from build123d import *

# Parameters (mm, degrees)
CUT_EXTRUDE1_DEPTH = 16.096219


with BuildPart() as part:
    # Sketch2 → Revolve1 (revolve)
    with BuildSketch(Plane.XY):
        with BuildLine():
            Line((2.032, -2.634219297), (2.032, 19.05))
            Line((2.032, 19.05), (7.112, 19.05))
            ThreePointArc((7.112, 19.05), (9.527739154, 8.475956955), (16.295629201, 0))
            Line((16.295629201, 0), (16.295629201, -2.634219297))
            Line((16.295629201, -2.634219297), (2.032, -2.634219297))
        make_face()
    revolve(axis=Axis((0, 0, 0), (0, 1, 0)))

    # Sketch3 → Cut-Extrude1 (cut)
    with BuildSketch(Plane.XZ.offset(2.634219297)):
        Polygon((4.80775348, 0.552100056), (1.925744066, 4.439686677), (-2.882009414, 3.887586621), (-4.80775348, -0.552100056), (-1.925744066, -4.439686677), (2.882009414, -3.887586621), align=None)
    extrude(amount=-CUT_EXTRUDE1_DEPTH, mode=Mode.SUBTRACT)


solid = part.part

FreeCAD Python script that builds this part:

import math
import FreeCAD as App
import Part
import Sketcher

V = App.Vector
Q = App.Units.Quantity


def add_polygon(sketch, points):
    """Adds a closed chain of lines whose ends are joined by coincident constraints."""
    first, n = sketch.GeometryCount, len(points)
    for a, b in zip(points, points[1:] + points[:1]):
        sketch.addGeometry(Part.LineSegment(App.Vector(*a, 0), App.Vector(*b, 0)), False)
    for i in range(n):
        sketch.addConstraint(Sketcher.Constraint("Coincident", first + i, 2, first + (i + 1) % n, 1))

doc = App.newDocument("Part")
params = doc.addObject("Spreadsheet::Sheet", "Params")
for row, (alias, value) in enumerate([
    ("sketch1_width", "0.2 in"),
    ("revolution_angle", "360 deg"),
    ("pocket1_length", "16.096219 mm"),
], start=1):
    params.set(f"A{row}", alias)
    params.set(f"B{row}", "=" + value)
    params.setAlias(f"B{row}", alias)

body = doc.addObject("PartDesign::Body", "Body")

sketch1 = body.newObject("Sketcher::SketchObject", "Sketch")
sketch1.AttachmentSupport = (doc.getObject("XY_Plane"), [""])
sketch1.MapMode = "FlatFace"
sketch1.addGeometry([
    Part.LineSegment(V(2.032, 19.05, 0), V(2.032, -2.634219, 0)),
    Part.LineSegment(V(2.032, -2.634219, 0), V(16.295629, -2.634219, 0)),
    Part.LineSegment(V(16.295629, -2.634219, 0), V(16.295629, 0, 0)),
    Part.ArcOfCircle(Part.Circle(V(31.461935, 19.05, 0), V(0, 0, 1), 24.349935), math.radians(-180), math.radians(-128.524402)),
    Part.LineSegment(V(7.112, 19.05, 0), V(2.032, 19.05, 0)),
], False)
sketch1.addConstraint([
    Sketcher.Constraint("Coincident", 0, 2, 1, 1),
    Sketcher.Constraint("Coincident", 1, 2, 2, 1),
    Sketcher.Constraint("Coincident", 2, 2, 3, 2),
    Sketcher.Constraint("Coincident", 3, 1, 4, 1),
    Sketcher.Constraint("Coincident", 4, 2, 0, 1),
    Sketcher.Constraint("Vertical", 0),
    Sketcher.Constraint("Horizontal", 1),
    Sketcher.Constraint("Vertical", 2),
    Sketcher.Constraint("Horizontal", 4),
    Sketcher.Constraint("PointOnObject", 2, 2, -1),
    Sketcher.Constraint("DistanceX", 4, 2, 4, 1, Q("0.2 in")),
    Sketcher.Constraint("DistanceY", -1, 1, 3, 3, Q("0.75 in")),
    Sketcher.Constraint("DistanceX", -1, 1, 0, 2, Q("0.08 in")),
    Sketcher.Constraint("DistanceY", -1, 1, 3, 1, Q("0.75 in")),
    Sketcher.Constraint("Radius", 3, 24.349935),
    Sketcher.Constraint("DistanceY", 0, 2, 0, 1, 21.684219),
])
sketch1.setExpression("Constraints[10]", "Params.sketch1_width")
revolution = body.newObject("PartDesign::Revolution", "Revolution")
revolution.Profile = sketch1
revolution.ReferenceAxis = (sketch1, ["V_Axis"])
revolution.setExpression("Angle", "Params.revolution_angle")

sketch2 = body.newObject("Sketcher::SketchObject", "Sketch001")
sketch2.AttachmentSupport = (doc.getObject("XZ_Plane"), [""])
sketch2.MapMode = "FlatFace"
sketch2.AttachmentOffset = App.Placement(V(0, 0, 2.634219), App.Rotation())
add_polygon(sketch2, [(4.807753, 0.5521), (1.925744, 4.439687), (-2.882009, 3.887587), (-4.807753, -0.5521), (-1.925744, -4.439687), (2.882009, -3.887587)])
sketch2.addConstraint([
    Sketcher.Constraint("Symmetric", 0, 2, 3, 2, -1, 1),
    Sketcher.Constraint("Symmetric", 1, 2, 4, 2, -1, 1),
    Sketcher.Constraint("Symmetric", 2, 2, 5, 2, -1, 1),
    Sketcher.Constraint("Equal", 0, 1),
    Sketcher.Constraint("Equal", 1, 2),
    Sketcher.Constraint("DistanceY", 2, 2, -1, 1, 0.5521),
    Sketcher.Constraint("DistanceY", 1, 2, 0, 2, 0.5521),
    Sketcher.Constraint("Distance", 0, 4.83935),
    Sketcher.Constraint("DistanceX", 1, 2, -1, 1, 2.882009),
])
pocket1 = body.newObject("PartDesign::Pocket", "Pocket")
pocket1.Profile = sketch2
pocket1.setExpression("Length", "Params.pocket1_length")

doc.recompute()
